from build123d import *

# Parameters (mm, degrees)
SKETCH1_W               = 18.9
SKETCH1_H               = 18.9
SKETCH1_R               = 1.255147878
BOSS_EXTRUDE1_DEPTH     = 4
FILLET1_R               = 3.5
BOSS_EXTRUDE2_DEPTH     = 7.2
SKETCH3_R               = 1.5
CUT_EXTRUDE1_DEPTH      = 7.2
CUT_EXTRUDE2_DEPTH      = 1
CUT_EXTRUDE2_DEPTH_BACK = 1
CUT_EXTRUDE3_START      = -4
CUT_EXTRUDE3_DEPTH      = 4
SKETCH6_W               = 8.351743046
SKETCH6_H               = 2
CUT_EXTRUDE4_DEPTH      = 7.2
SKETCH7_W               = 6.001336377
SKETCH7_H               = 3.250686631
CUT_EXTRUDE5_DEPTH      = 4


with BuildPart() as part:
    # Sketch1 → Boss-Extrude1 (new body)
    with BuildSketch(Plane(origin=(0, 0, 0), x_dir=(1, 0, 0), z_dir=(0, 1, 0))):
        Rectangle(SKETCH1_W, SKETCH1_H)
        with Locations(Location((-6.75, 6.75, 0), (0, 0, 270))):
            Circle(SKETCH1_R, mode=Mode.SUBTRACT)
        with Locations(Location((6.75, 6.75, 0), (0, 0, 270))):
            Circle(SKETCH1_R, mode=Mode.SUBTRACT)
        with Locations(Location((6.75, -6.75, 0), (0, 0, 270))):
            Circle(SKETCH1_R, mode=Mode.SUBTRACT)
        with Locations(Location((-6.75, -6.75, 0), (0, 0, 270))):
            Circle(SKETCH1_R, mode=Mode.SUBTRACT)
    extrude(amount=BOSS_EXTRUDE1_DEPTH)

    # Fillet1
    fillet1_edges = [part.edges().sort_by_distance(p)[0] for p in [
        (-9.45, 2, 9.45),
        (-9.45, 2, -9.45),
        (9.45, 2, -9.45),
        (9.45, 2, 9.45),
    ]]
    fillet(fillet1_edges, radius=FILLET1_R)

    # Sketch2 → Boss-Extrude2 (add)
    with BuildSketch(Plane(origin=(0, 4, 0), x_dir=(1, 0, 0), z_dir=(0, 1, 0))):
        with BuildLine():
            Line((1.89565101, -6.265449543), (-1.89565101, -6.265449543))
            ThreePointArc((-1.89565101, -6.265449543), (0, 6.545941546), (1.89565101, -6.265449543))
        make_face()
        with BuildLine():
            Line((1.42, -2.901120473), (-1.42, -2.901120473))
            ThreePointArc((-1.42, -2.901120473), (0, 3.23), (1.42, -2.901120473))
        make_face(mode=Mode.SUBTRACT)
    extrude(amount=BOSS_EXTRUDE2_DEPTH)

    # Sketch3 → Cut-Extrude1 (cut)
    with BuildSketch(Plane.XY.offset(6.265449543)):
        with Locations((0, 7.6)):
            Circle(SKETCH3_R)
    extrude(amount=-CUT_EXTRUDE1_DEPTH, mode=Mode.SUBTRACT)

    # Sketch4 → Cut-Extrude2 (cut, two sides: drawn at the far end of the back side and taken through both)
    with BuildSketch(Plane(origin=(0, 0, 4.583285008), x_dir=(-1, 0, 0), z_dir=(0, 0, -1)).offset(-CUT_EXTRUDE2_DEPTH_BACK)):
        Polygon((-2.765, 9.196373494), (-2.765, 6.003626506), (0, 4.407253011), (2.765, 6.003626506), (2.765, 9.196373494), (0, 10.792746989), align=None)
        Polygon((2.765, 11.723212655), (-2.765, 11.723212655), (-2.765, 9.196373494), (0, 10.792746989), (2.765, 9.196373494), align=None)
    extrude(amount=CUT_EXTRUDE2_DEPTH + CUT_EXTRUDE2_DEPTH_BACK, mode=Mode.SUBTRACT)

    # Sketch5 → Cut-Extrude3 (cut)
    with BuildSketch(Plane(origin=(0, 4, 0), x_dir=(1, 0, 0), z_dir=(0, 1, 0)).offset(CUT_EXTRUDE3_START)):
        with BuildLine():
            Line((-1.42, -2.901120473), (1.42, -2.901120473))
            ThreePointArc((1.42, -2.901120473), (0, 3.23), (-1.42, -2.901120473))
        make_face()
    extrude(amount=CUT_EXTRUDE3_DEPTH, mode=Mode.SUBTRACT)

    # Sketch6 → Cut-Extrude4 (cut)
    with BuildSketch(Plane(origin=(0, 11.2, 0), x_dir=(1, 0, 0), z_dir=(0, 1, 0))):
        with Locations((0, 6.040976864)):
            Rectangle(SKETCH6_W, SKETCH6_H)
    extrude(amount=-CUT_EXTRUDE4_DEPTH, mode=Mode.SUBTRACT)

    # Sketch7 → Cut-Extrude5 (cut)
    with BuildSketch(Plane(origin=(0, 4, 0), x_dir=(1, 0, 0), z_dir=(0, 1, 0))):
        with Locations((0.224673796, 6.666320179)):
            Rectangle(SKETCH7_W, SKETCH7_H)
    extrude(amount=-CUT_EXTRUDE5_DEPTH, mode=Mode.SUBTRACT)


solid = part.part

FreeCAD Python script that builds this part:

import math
import FreeCAD as App
import Part
import Sketcher

V = App.Vector
Q = App.Units.Quantity


def edges_at(feature, points):
    """Names of the edges that pass closest to the given points."""
    edges = feature.Shape.Edges
    near = lambda p: min(range(len(edges)), key=lambda i: edges[i].distToShape(Part.Vertex(*p))[0])
    return sorted({f"Edge{near(p) + 1}" for p in points})


def add_polygon(sketch, points):
    """Adds a closed chain of lines whose ends are joined by coincident constraints."""
    first, n = sketch.GeometryCount, len(points)
    for a, b in zip(points, points[1:] + points[:1]):
        sketch.addGeometry(Part.LineSegment(App.Vector(*a, 0), App.Vector(*b, 0)), False)
    for i in range(n):
        sketch.addConstraint(Sketcher.Constraint("Coincident", first + i, 2, first + (i + 1) % n, 1))

doc = App.newDocument("Part")
body = doc.addObject("PartDesign::Body", "Body")

# Sketch on XZ plane
sketch1 = body.newObject("Sketcher::SketchObject", "Sketch")
sketch1.AttachmentSupport = (doc.getObject("XZ_Plane"), [""])
sketch1.MapMode = "FlatFace"
add_polygon(sketch1, [(-9.4, -9.4), (-9.4, 9.4), (9.4, 9.4), (9.4, -9.4)])  # lines 0-3
sketch1.addGeometry(Part.Circle(V(-6.8, 6.8, 0), V(0, 0, 1), 1.3), False)  # 4
sketch1.addGeometry(Part.Circle(V(6.8, 6.8, 0), V(0, 0, 1), 1.3), False)  # 5
sketch1.addGeometry(Part.Circle(V(-6.8, -6.8, 0), V(0, 0, 1), 1.3), False)  # 6
sketch1.addGeometry(Part.Circle(V(6.8, -6.8, 0), V(0, 0, 1), 1.3), False)  # 7
sketch1.addConstraint(Sketcher.Constraint("Vertical", 0))
sketch1.addConstraint(Sketcher.Constraint("Horizontal", 1))
sketch1.addConstraint(Sketcher.Constraint("Vertical", 2))
sketch1.addConstraint(Sketcher.Constraint("Horizontal", 3))
sketch1.addConstraint(Sketcher.Constraint("Equal", 4, 5))
sketch1.addConstraint(Sketcher.Constraint("Equal", 5, 6))
sketch1.addConstraint(Sketcher.Constraint("Equal", 6, 7))
sketch1.addConstraint(Sketcher.Constraint("Symmetric", 5, 3, 6, 3, -1, 1))
sketch1.addConstraint(Sketcher.Constraint("Symmetric", 4, 3, 7, 3, -1, 1))
sketch1.addConstraint(Sketcher.Constraint("Symmetric", 0, 2, 2, 2, -1, 1))
sketch1.addConstraint(Sketcher.Constraint("Symmetric", 4, 3, 5, 3, -2))
sketch1.addConstraint(Sketcher.Constraint("Equal", 3, 0))
sketch1.addConstraint(Sketcher.Constraint("DistanceX", 1, 1, 1, 2, 18.9))
sketch1.addConstraint(Sketcher.Constraint("DistanceX", 4, 3, 5, 3, 13.5))
sketch1.addConstraint(Sketcher.Constraint("DistanceY", 6, 3, 4, 3, 13.5))
sketch1.addConstraint(Sketcher.Constraint("Diameter", 4, 2.510296))
pad1 = body.newObject("PartDesign::Pad", "Pad")
pad1.Profile = sketch1
pad1.Length = 4
pad1.Reversed = True
doc.recompute()

fillet = body.newObject("PartDesign::Fillet", "Fillet")
fillet.Base = (pad1, edges_at(pad1, [
    (-9.45, 2, 9.45),
    (-9.45, 2, -9.45),
    (9.45, 2, -9.45),
    (9.45, 2, 9.45),
]))
fillet.Radius = 3.5

# Sketch on XZ plane
sketch2 = body.newObject("Sketcher::SketchObject", "Sketch001")
sketch2.AttachmentSupport = (doc.getObject("XZ_Plane"), [""])
sketch2.MapMode = "FlatFace"
sketch2.AttachmentOffset = App.Placement(V(0, 0, -4), App.Rotation())
sketch2.addGeometry(Part.LineSegment(V(-1.9, 6.3, 0), V(1.9, 6.3, 0)), False)
sketch2.addGeometry(Part.ArcOfCircle(Part.Circle(V(0, 0, 0), V(0, 0, 1), 6.5), math.radians(107), math.radians(433)), False)
sketch2.addGeometry(Part.LineSegment(V(1.4, 2.9, 0), V(-1.4, 2.9, 0)), False)
sketch2.addGeometry(Part.ArcOfCircle(Part.Circle(V(0, 0, 0), V(0, 0, 1), 3.2), math.radians(116), math.radians(424)), False)
sketch2.addConstraint(Sketcher.Constraint("Coincident", 0, 1, 1, 1))
sketch2.addConstraint(Sketcher.Constraint("Coincident", 1, 2, 0, 2))
sketch2.addConstraint(Sketcher.Constraint("Coincident", 2, 1, 3, 2))
sketch2.addConstraint(Sketcher.Constraint("Coincident", 3, 1, 2, 2))
sketch2.addConstraint(Sketcher.Constraint("Horizontal", 0))
sketch2.addConstraint(Sketcher.Constraint("Horizontal", 2))
sketch2.addConstraint(Sketcher.Constraint("Coincident", 1, 3, -1, 1))
sketch2.addConstraint(Sketcher.Constraint("Coincident", 3, 3, -1, 1))
sketch2.addConstraint(Sketcher.Constraint("Radius", 3, 3.23))
sketch2.addConstraint(Sketcher.Constraint("DistanceX", 2, 2, 2, 1, 2.84))
sketch2.addConstraint(Sketcher.Constraint("Radius", 1, 6.545942))
sketch2.addConstraint(Sketcher.Constraint("DistanceX", 0, 1, 0, 2, 3.791302))
pad2 = body.newObject("PartDesign::Pad", "Pad001")
pad2.Profile = sketch2
pad2.Length = 7.2
pad2.Reversed = True

# Sketch on XY plane
sketch3 = body.newObject("Sketcher::SketchObject", "Sketch002")
sketch3.AttachmentSupport = (doc.getObject("XY_Plane"), [""])
sketch3.MapMode = "FlatFace"
sketch3.AttachmentOffset = App.Placement(V(0, 0, 6.26545), App.Rotation())
sketch3.addGeometry(Part.Circle(V(0, 7.6, 0), V(0, 0, 1), 1.5), False)
sketch3.addConstraint(Sketcher.Constraint("PointOnObject", 0, 3, -2))
sketch3.addConstraint(Sketcher.Constraint("Diameter", 0, 3.0))
sketch3.addConstraint(Sketcher.Constraint("DistanceY", -1, 1, 0, 3, 7.6))
pocket1 = body.newObject("PartDesign::Pocket", "Pocket")
pocket1.Profile = sketch3
pocket1.Length = 7.2

# Sketch on XY plane
sketch4 = body.newObject("Sketcher::SketchObject", "Sketch003")
sketch4.AttachmentSupport = (doc.getObject("XY_Plane"), [""])
sketch4.MapMode = "FlatFace"
sketch4.AttachmentOffset = App.Placement(V(0, 0, 4.583285), App.Rotation())
add_polygon(sketch4, [(2.8, 6), (0, 4.4), (-2.8, 6), (-2.8, 11.7), (2.8, 11.7)])  # lines 0-4
sketch4.addConstraint(Sketcher.Constraint("Vertical", 2))
sketch4.addConstraint(Sketcher.Constraint("Horizontal", 3))
sketch4.addConstraint(Sketcher.Constraint("Vertical", 4))
sketch4.addConstraint(Sketcher.Constraint("Symmetric", 1, 2, 4, 2, -2))
sketch4.addConstraint(Sketcher.Constraint("PointOnObject", 0, 2, -2))
sketch4.addConstraint(Sketcher.Constraint("Angle", 0, Q("-150 deg")))
sketch4.addConstraint(Sketcher.Constraint("DistanceX", 3, 1, 3, 2, 5.53))
sketch4.addConstraint(Sketcher.Constraint("DistanceY", 2, 1, 2, 2, 5.719586))
sketch4.addConstraint(Sketcher.Constraint("DistanceY", -1, 1, 0, 2, 4.407253))
pocket2 = body.newObject("PartDesign::Pocket", "Pocket001")
pocket2.Profile = sketch4
pocket2.Type = "TwoLengths"
pocket2.Length = 1
pocket2.Length2 = 1

# Sketch on XZ plane
sketch5 = body.newObject("Sketcher::SketchObject", "Sketch004")
sketch5.AttachmentSupport = (doc.getObject("XZ_Plane"), [""])
sketch5.MapMode = "FlatFace"
sketch5.addGeometry(Part.LineSegment(V(-1.4, 2.9, 0), V(1.4, 2.9, 0)), False)
sketch5.addGeometry(Part.ArcOfCircle(Part.Circle(V(0, 0, 0), V(0, 0, 1), 3.2), math.radians(116), math.radians(424)), False)
sketch5.addConstraint(Sketcher.Constraint("Coincident", 0, 1, 1, 1))
sketch5.addConstraint(Sketcher.Constraint("Coincident", 1, 2, 0, 2))
sketch5.addConstraint(Sketcher.Constraint("Horizontal", 0))
sketch5.addConstraint(Sketcher.Constraint("Coincident", 1, 3, -1, 1))
sketch5.addConstraint(Sketcher.Constraint("Radius", 1, 3.23))
sketch5.addConstraint(Sketcher.Constraint("DistanceX", 0, 1, 0, 2, 2.84))
pocket3 = body.newObject("PartDesign::Pocket", "Pocket002")
pocket3.Profile = sketch5
pocket3.Length = 4

# Sketch on XZ plane
sketch6 = body.newObject("Sketcher::SketchObject", "Sketch005")
sketch6.AttachmentSupport = (doc.getObject("XZ_Plane"), [""])
sketch6.MapMode = "FlatFace"
sketch6.AttachmentOffset = App.Placement(V(0, 0, -11.2), App.Rotation())
add_polygon(sketch6, [(-4.2, -7), (-4.2, -5), (4.2, -5), (4.2, -7)])  # lines 0-3
sketch6.addConstraint(Sketcher.Constraint("Vertical", 0))
sketch6.addConstraint(Sketcher.Constraint("Horizontal", 1))
sketch6.addConstraint(Sketcher.Constraint("Vertical", 2))
sketch6.addConstraint(Sketcher.Constraint("Horizontal", 3))
sketch6.addConstraint(Sketcher.Constraint("DistanceY", 0, 1, 0, 2, 2.0))
sketch6.addConstraint(Sketcher.Constraint("DistanceX", 1, 1, 1, 2, 8.351743))
sketch6.addConstraint(Sketcher.Constraint("DistanceX", 0, 2, -1, 1, 4.175872))
sketch6.addConstraint(Sketcher.Constraint("DistanceY", 0, 2, -1, 1, 5.040977))
pocket4 = body.newObject("PartDesign::Pocket", "Pocket003")
pocket4.Profile = sketch6
pocket4.Length = 7.2
pocket4.Reversed = True

# Sketch on XZ plane
sketch7 = body.newObject("Sketcher::SketchObject", "Sketch006")
sketch7.AttachmentSupport = (doc.getObject("XZ_Plane"), [""])
sketch7.MapMode = "FlatFace"
sketch7.AttachmentOffset = App.Placement(V(0, 0, -4), App.Rotation())
add_polygon(sketch7, [(-2.8, -8.3), (-2.8, -5), (3.2, -5), (3.2, -8.3)])  # lines 0-3
sketch7.addConstraint(Sketcher.Constraint("Vertical", 0))
sketch7.addConstraint(Sketcher.Constraint("Horizontal", 1))
sketch7.addConstraint(Sketcher.Constraint("Vertical", 2))
sketch7.addConstraint(Sketcher.Constraint("Horizontal", 3))
sketch7.addConstraint(Sketcher.Constraint("DistanceX", 1, 1, 1, 2, 6.001336))
sketch7.addConstraint(Sketcher.Constraint("DistanceY", 0, 1, 0, 2, 3.250687))
sketch7.addConstraint(Sketcher.Constraint("DistanceX", -1, 1, 1, 2, 3.225342))
sketch7.addConstraint(Sketcher.Constraint("DistanceY", 0, 2, -1, 1, 5.040977))
pocket5 = body.newObject("PartDesign::Pocket", "Pocket004")
pocket5.Profile = sketch7
pocket5.Length = 4
pocket5.Reversed = True

doc.recompute()
